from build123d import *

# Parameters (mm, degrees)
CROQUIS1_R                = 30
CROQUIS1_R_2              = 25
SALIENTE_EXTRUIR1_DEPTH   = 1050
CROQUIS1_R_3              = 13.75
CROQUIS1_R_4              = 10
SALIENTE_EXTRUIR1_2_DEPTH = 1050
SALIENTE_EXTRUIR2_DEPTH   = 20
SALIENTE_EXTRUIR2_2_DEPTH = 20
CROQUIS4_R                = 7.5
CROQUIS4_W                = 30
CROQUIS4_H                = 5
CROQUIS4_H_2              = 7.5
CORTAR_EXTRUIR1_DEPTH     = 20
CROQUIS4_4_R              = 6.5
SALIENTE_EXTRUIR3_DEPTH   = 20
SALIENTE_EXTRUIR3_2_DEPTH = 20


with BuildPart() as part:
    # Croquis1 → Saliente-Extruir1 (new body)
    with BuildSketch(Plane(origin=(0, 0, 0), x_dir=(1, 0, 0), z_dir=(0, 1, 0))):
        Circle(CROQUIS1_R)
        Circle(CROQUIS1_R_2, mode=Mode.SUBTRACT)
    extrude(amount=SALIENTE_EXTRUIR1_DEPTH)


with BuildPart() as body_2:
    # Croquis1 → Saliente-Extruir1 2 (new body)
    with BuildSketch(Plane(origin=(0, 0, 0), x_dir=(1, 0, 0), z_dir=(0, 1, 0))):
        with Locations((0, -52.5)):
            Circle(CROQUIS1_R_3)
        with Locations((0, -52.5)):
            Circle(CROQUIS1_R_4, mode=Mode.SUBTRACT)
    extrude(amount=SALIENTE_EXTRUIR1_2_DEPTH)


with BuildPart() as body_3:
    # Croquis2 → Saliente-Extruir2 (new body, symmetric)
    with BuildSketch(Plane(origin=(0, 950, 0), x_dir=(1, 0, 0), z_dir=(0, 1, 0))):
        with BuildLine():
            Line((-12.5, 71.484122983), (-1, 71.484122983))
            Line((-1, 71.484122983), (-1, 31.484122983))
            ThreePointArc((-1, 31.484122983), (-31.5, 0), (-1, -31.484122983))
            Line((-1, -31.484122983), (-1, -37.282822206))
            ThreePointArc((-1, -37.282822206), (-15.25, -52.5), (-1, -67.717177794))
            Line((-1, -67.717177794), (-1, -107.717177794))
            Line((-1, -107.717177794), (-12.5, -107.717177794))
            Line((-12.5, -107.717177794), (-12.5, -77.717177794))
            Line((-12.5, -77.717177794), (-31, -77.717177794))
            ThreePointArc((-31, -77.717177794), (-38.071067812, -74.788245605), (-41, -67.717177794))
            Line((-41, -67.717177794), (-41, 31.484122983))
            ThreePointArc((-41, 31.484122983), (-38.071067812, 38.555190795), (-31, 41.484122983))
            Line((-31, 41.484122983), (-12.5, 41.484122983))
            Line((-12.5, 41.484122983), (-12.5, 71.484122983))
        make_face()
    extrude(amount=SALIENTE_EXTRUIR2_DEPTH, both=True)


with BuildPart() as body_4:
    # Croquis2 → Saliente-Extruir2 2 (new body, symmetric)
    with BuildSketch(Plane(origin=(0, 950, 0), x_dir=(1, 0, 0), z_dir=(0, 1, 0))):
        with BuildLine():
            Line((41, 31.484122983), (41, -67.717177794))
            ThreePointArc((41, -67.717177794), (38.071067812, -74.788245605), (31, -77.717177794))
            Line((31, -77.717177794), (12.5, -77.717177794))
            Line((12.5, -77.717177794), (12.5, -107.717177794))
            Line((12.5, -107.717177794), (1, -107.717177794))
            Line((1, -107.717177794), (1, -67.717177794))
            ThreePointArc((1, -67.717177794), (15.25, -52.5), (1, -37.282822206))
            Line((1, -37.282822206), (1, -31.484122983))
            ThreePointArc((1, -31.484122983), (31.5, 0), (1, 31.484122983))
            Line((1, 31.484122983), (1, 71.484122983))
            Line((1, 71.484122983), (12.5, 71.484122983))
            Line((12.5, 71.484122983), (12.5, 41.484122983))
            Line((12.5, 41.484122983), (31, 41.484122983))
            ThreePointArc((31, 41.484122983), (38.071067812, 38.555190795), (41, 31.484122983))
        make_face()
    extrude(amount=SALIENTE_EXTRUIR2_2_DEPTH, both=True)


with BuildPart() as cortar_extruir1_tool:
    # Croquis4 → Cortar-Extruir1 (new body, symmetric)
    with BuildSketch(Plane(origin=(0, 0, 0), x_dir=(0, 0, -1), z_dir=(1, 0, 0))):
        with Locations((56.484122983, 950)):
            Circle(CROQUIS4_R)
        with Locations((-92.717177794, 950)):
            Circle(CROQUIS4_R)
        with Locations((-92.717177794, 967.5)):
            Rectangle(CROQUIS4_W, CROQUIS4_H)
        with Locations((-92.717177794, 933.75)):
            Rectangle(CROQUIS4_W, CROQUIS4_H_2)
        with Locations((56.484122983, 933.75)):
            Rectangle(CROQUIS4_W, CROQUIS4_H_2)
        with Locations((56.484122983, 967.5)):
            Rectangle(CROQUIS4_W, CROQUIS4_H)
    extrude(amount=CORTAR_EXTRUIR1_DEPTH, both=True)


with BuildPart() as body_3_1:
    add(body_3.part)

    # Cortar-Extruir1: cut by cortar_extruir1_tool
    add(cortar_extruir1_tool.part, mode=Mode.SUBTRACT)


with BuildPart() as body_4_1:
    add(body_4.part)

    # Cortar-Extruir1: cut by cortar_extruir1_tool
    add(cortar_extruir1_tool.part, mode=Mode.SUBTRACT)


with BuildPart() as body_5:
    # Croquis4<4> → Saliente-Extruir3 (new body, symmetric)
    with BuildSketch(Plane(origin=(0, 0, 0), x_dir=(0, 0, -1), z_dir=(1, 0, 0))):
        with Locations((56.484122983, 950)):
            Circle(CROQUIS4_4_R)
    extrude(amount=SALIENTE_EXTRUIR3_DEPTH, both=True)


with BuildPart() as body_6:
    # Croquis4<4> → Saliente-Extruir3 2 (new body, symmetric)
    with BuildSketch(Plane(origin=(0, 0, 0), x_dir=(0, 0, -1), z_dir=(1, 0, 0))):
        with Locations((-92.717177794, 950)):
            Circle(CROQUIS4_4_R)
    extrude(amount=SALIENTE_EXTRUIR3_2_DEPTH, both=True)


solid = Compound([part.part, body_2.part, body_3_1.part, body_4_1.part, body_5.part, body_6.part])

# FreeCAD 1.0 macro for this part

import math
import FreeCAD as App
import Part
import Sketcher
from FreeCAD import Vector
Q = App.Units.Quantity

doc = App.newDocument("Part")
body = doc.addObject("PartDesign::Body", "Body")

# Sketch on XZ plane
sketch1 = doc.addObject("Sketcher::SketchObject", "Sketch")
body.addObject(sketch1)
sketch1.AttachmentSupport = (doc.XZ_Plane, [""])
sketch1.MapMode = "FlatFace"
sketch1.addGeometry([
    Part.Circle(Vector(0, 0, 0), Vector(0, 0, 1), 30),
    Part.Circle(Vector(0, 0, 0), Vector(0, 0, 1), 25),
], False)
sketch1.addConstraint([
    Sketcher.Constraint("Coincident", 0, 3, -1, 1),
    Sketcher.Constraint("Coincident", 1, 3, -1, 1),
    Sketcher.Constraint("Diameter", 0, Q("60 mm")),
    Sketcher.Constraint("Diameter", 1, Q("50 mm")),
])
pad1 = doc.addObject("PartDesign::Pad", "Pad")
body.addObject(pad1)
pad1.Profile = sketch1
pad1.Length = 1050
pad1.Reversed = True
body2 = doc.addObject("PartDesign::Body", "Body001")

# Sketch on XZ plane
sketch2 = doc.addObject("Sketcher::SketchObject", "Sketch001")
body2.addObject(sketch2)
sketch2.AttachmentSupport = (doc.getObject("XZ_Plane001"), [""])
sketch2.MapMode = "FlatFace"
sketch2.addGeometry([
    Part.Circle(Vector(0, 52, 0), Vector(0, 0, 1), 14),
    Part.Circle(Vector(0, 52, 0), Vector(0, 0, 1), 10),
], False)
sketch2.addConstraint([
    Sketcher.Constraint("Coincident", 1, 3, 0, 3),
    Sketcher.Constraint("PointOnObject", 0, 3, -2),
    Sketcher.Constraint("Diameter", 1, Q("20 mm")),
    Sketcher.Constraint("Diameter", 0, Q("27.5 mm")),
    Sketcher.Constraint("DistanceY", -1, 1, 0, 3, Q("52.5 mm")),
])
pad2 = doc.addObject("PartDesign::Pad", "Pad001")
body2.addObject(pad2)
pad2.Profile = sketch2
pad2.Length = 1050
pad2.Reversed = True
body3 = doc.addObject("PartDesign::Body", "Body002")

# Sketch on XZ plane
sketch3 = doc.addObject("Sketcher::SketchObject", "Sketch002")
body3.addObject(sketch3)
sketch3.AttachmentSupport = (doc.getObject("XZ_Plane002"), [""])
sketch3.MapMode = "FlatFace"
sketch3.AttachmentOffset = App.Placement(Vector(0, 0, -950), App.Rotation())
sketch3.addGeometry([
    Part.LineSegment(Vector(-1, -71, 0), Vector(-12, -71, 0)),  # 0
    Part.LineSegment(Vector(-12, -71, 0), Vector(-12, -41, 0)),  # 1
    Part.LineSegment(Vector(-12, -41, 0), Vector(-31, -41, 0)),  # 2
    Part.ArcOfCircle(Part.Circle(Vector(-31, -31, 0), Vector(0, 0, 1), 10), math.radians(180), math.radians(270)),  # 3
    Part.LineSegment(Vector(-41, -31, 0), Vector(-41, 68, 0)),  # 4
    Part.ArcOfCircle(Part.Circle(Vector(-31, 68, 0), Vector(0, 0, 1), 10), math.radians(90), math.radians(180)),  # 5
    Part.LineSegment(Vector(-31, 78, 0), Vector(-12, 78, 0)),  # 6
    Part.LineSegment(Vector(-12, 78, 0), Vector(-12, 108, 0)),  # 7
    Part.LineSegment(Vector(-12, 108, 0), Vector(-1, 108, 0)),  # 8
    Part.LineSegment(Vector(-1, 108, 0), Vector(-1, 68, 0)),  # 9
    Part.ArcOfCircle(Part.Circle(Vector(0, 52, 0), Vector(0, 0, 1), 15), math.radians(94), math.radians(266)),  # 10
    Part.LineSegment(Vector(-1, 37, 0), Vector(-1, 31, 0)),  # 11
    Part.ArcOfCircle(Part.Circle(Vector(0, 0, 0), Vector(0, 0, 1), 32), math.radians(92), math.radians(268)),  # 12
    Part.LineSegment(Vector(-1, -31, 0), Vector(-1, -71, 0)),  # 13
], False)
sketch3.addConstraint([
    Sketcher.Constraint("Coincident", 0, 2, 1, 1),
    Sketcher.Constraint("Coincident", 1, 2, 2, 1),
    Sketcher.Constraint("Tangent", 2, 2, 3, 2),
    Sketcher.Constraint("Tangent", 3, 1, 4, 1),
    Sketcher.Constraint("Tangent", 4, 2, 5, 2),
    Sketcher.Constraint("Tangent", 5, 1, 6, 1),
    Sketcher.Constraint("Coincident", 6, 2, 7, 1),
    Sketcher.Constraint("Coincident", 7, 2, 8, 1),
    Sketcher.Constraint("Coincident", 8, 2, 9, 1),
    Sketcher.Constraint("Coincident", 9, 2, 10, 1),
    Sketcher.Constraint("Coincident", 10, 2, 11, 1),
    Sketcher.Constraint("Coincident", 11, 2, 12, 1),
    Sketcher.Constraint("Coincident", 12, 2, 13, 1),
    Sketcher.Constraint("Coincident", 13, 2, 0, 1),
    Sketcher.Constraint("Horizontal", 0),
    Sketcher.Constraint("Vertical", 1),
    Sketcher.Constraint("Horizontal", 2),
    Sketcher.Constraint("Vertical", 4),
    Sketcher.Constraint("Horizontal", 6),
    Sketcher.Constraint("Vertical", 7),
    Sketcher.Constraint("Horizontal", 8),
    Sketcher.Constraint("Vertical", 9),
    Sketcher.Constraint("Vertical", 11),
    Sketcher.Constraint("Vertical", 13),
    Sketcher.Constraint("Coincident", 12, 3, -1, 1),
    Sketcher.Constraint("Equal", 3, 5),
    Sketcher.Constraint("PointOnObject", 10, 3, -2),
    Sketcher.Constraint("Horizontal", 4, 2, 9, 2),
    Sketcher.Constraint("Horizontal", 3, 1, 12, 2),
    Sketcher.Constraint("Vertical", 1, 2, 6, 2),
    Sketcher.Constraint("Vertical", 9, 2, 10, 2),
    Sketcher.Constraint("Vertical", 11, 2, 12, 2),
    Sketcher.Constraint("Equal", 1, 7),
    Sketcher.Constraint("Radius", 3, Q("10 mm")),
    Sketcher.Constraint("Radius", 12, Q("31.5 mm")),
    Sketcher.Constraint("DistanceY", 1, 1, 1, 2, Q("30 mm")),
    Sketcher.Constraint("Radius", 10, Q("15.25 mm")),
    Sketcher.Constraint("DistanceX", 0, 2, 0, 1, Q("11.5 mm")),
    Sketcher.Constraint("DistanceX", 2, 2, 2, 1, Q("18.5 mm")),
    Sketcher.Constraint("DistanceX", 3, 3, -1, 1, Q("31 mm")),
    Sketcher.Constraint("DistanceY", -1, 1, 10, 3, Q("52.5 mm")),
])
pad3 = doc.addObject("PartDesign::Pad", "Pad002")
body3.addObject(pad3)
pad3.Profile = sketch3
pad3.Length = 40
pad3.Midplane = True
body4 = doc.addObject("PartDesign::Body", "Body003")

# Sketch on XZ plane
sketch4 = doc.addObject("Sketcher::SketchObject", "Sketch003")
body4.addObject(sketch4)
sketch4.AttachmentSupport = (doc.getObject("XZ_Plane003"), [""])
sketch4.MapMode = "FlatFace"
sketch4.AttachmentOffset = App.Placement(Vector(0, 0, -950), App.Rotation())
sketch4.addGeometry([
    Part.LineSegment(Vector(41, 68, 0), Vector(41, -31, 0)),  # 0
    Part.ArcOfCircle(Part.Circle(Vector(31, -31, 0), Vector(0, 0, 1), 10), math.radians(-90), math.radians(0)),  # 1
    Part.LineSegment(Vector(31, -41, 0), Vector(12, -41, 0)),  # 2
    Part.LineSegment(Vector(12, -41, 0), Vector(12, -71, 0)),  # 3
    Part.LineSegment(Vector(12, -71, 0), Vector(1, -71, 0)),  # 4
    Part.LineSegment(Vector(1, -71, 0), Vector(1, -31, 0)),  # 5
    Part.ArcOfCircle(Part.Circle(Vector(0, 0, 0), Vector(0, 0, 1), 32), math.radians(-88), math.radians(88)),  # 6
    Part.LineSegment(Vector(1, 31, 0), Vector(1, 37, 0)),  # 7
    Part.ArcOfCircle(Part.Circle(Vector(0, 52, 0), Vector(0, 0, 1), 15), math.radians(-86), math.radians(86)),  # 8
    Part.LineSegment(Vector(1, 68, 0), Vector(1, 108, 0)),  # 9
    Part.LineSegment(Vector(1, 108, 0), Vector(12, 108, 0)),  # 10
    Part.LineSegment(Vector(12, 108, 0), Vector(12, 78, 0)),  # 11
    Part.LineSegment(Vector(12, 78, 0), Vector(31, 78, 0)),  # 12
    Part.ArcOfCircle(Part.Circle(Vector(31, 68, 0), Vector(0, 0, 1), 10), math.radians(0), math.radians(90)),  # 13
], False)
sketch4.addConstraint([
    Sketcher.Constraint("Tangent", 0, 2, 1, 2),
    Sketcher.Constraint("Tangent", 1, 1, 2, 1),
    Sketcher.Constraint("Coincident", 2, 2, 3, 1),
    Sketcher.Constraint("Coincident", 3, 2, 4, 1),
    Sketcher.Constraint("Coincident", 4, 2, 5, 1),
    Sketcher.Constraint("Coincident", 5, 2, 6, 1),
    Sketcher.Constraint("Coincident", 6, 2, 7, 1),
    Sketcher.Constraint("Coincident", 7, 2, 8, 1),
    Sketcher.Constraint("Coincident", 8, 2, 9, 1),
    Sketcher.Constraint("Coincident", 9, 2, 10, 1),
    Sketcher.Constraint("Coincident", 10, 2, 11, 1),
    Sketcher.Constraint("Coincident", 11, 2, 12, 1),
    Sketcher.Constraint("Tangent", 12, 2, 13, 2),
    Sketcher.Constraint("Tangent", 13, 1, 0, 1),
    Sketcher.Constraint("Vertical", 0),
    Sketcher.Constraint("Horizontal", 2),
    Sketcher.Constraint("Vertical", 3),
    Sketcher.Constraint("Horizontal", 4),
    Sketcher.Constraint("Vertical", 5),
    Sketcher.Constraint("Vertical", 7),
    Sketcher.Constraint("Vertical", 9),
    Sketcher.Constraint("Horizontal", 10),
    Sketcher.Constraint("Vertical", 11),
    Sketcher.Constraint("Horizontal", 12),
    Sketcher.Constraint("Coincident", 6, 3, -1, 1),
    Sketcher.Constraint("Equal", 1, 13),
    Sketcher.Constraint("PointOnObject", 8, 3, -2),
    Sketcher.Constraint("Horizontal", 0, 2, 5, 2),
    Sketcher.Constraint("Horizontal", 13, 3, 8, 2),
    Sketcher.Constraint("Vertical", 5, 2, 6, 2),
    Sketcher.Constraint("Vertical", 7, 2, 8, 2),
    Sketcher.Constraint("Vertical", 3, 2, 10, 2),
    Sketcher.Constraint("Equal", 5, 9),
    Sketcher.Constraint("Radius", 1, Q("10 mm")),
    Sketcher.Constraint("Radius", 6, Q("31.5 mm")),
    Sketcher.Constraint("DistanceY", 3, 2, 3, 1, Q("30 mm")),
    Sketcher.Constraint("Radius", 8, Q("15.25 mm")),
    Sketcher.Constraint("DistanceX", 2, 2, 2, 1, Q("18.5 mm")),
    Sketcher.Constraint("DistanceX", 4, 2, 4, 1, Q("11.5 mm")),
    Sketcher.Constraint("DistanceX", -1, 1, 1, 3, Q("31 mm")),
    Sketcher.Constraint("DistanceY", -1, 1, 8, 3, Q("52.5 mm")),
])
pad4 = doc.addObject("PartDesign::Pad", "Pad003")
body4.addObject(pad4)
pad4.Profile = sketch4
pad4.Length = 40
pad4.Midplane = True
body5 = doc.addObject("PartDesign::Body", "Body004")
body5.AllowCompound = True

# Sketch on YZ plane
sketch5 = doc.addObject("Sketcher::SketchObject", "Sketch004")
body5.addObject(sketch5)
sketch5.AttachmentSupport = (doc.getObject("YZ_Plane004"), [""])
sketch5.MapMode = "FlatFace"
sketch5.addGeometry([
    Part.Circle(Vector(950, -56, 0), Vector(0, 0, 1), 8),  # 0
    Part.Circle(Vector(950, 93, 0), Vector(0, 0, 1), 8),  # 1
    Part.LineSegment(Vector(970, 108, 0), Vector(965, 108, 0)),  # 2
    Part.LineSegment(Vector(965, 108, 0), Vector(965, 78, 0)),  # 3
    Part.LineSegment(Vector(965, 78, 0), Vector(970, 78, 0)),  # 4
    Part.LineSegment(Vector(970, 78, 0), Vector(970, 108, 0)),  # 5
    Part.LineSegment(Vector(938, 108, 0), Vector(930, 108, 0)),  # 6
    Part.LineSegment(Vector(930, 108, 0), Vector(930, 78, 0)),  # 7
    Part.LineSegment(Vector(930, 78, 0), Vector(938, 78, 0)),  # 8
    Part.LineSegment(Vector(938, 78, 0), Vector(938, 108, 0)),  # 9
    Part.LineSegment(Vector(938, -41, 0), Vector(930, -41, 0)),  # 10
    Part.LineSegment(Vector(930, -41, 0), Vector(930, -71, 0)),  # 11
    Part.LineSegment(Vector(930, -71, 0), Vector(938, -71, 0)),  # 12
    Part.LineSegment(Vector(938, -71, 0), Vector(938, -41, 0)),  # 13
    Part.LineSegment(Vector(970, -41, 0), Vector(965, -41, 0)),  # 14
    Part.LineSegment(Vector(965, -41, 0), Vector(965, -71, 0)),  # 15
    Part.LineSegment(Vector(965, -71, 0), Vector(970, -71, 0)),  # 16
    Part.LineSegment(Vector(970, -71, 0), Vector(970, -41, 0)),  # 17
], False)
sketch5.addConstraint([
    Sketcher.Constraint("Coincident", 2, 2, 3, 1),
    Sketcher.Constraint("Coincident", 3, 2, 4, 1),
    Sketcher.Constraint("Coincident", 4, 2, 5, 1),
    Sketcher.Constraint("Coincident", 5, 2, 2, 1),
    Sketcher.Constraint("Coincident", 6, 2, 7, 1),
    Sketcher.Constraint("Coincident", 7, 2, 8, 1),
    Sketcher.Constraint("Coincident", 8, 2, 9, 1),
    Sketcher.Constraint("Coincident", 9, 2, 6, 1),
    Sketcher.Constraint("Coincident", 10, 2, 11, 1),
    Sketcher.Constraint("Coincident", 11, 2, 12, 1),
    Sketcher.Constraint("Coincident", 12, 2, 13, 1),
    Sketcher.Constraint("Coincident", 13, 2, 10, 1),
    Sketcher.Constraint("Coincident", 14, 2, 15, 1),
    Sketcher.Constraint("Coincident", 15, 2, 16, 1),
    Sketcher.Constraint("Coincident", 16, 2, 17, 1),
    Sketcher.Constraint("Coincident", 17, 2, 14, 1),
    Sketcher.Constraint("Horizontal", 2),
    Sketcher.Constraint("Vertical", 3),
    Sketcher.Constraint("Horizontal", 4),
    Sketcher.Constraint("Vertical", 5),
    Sketcher.Constraint("Horizontal", 6),
    Sketcher.Constraint("Vertical", 7),
    Sketcher.Constraint("Horizontal", 8),
    Sketcher.Constraint("Vertical", 9),
    Sketcher.Constraint("Horizontal", 10),
    Sketcher.Constraint("Vertical", 11),
    Sketcher.Constraint("Horizontal", 12),
    Sketcher.Constraint("Vertical", 13),
    Sketcher.Constraint("Horizontal", 14),
    Sketcher.Constraint("Vertical", 15),
    Sketcher.Constraint("Horizontal", 16),
    Sketcher.Constraint("Vertical", 17),
    Sketcher.Constraint("Equal", 0, 1),
    Sketcher.Constraint("Horizontal", 5, 2, 6, 2),
    Sketcher.Constraint("Horizontal", 4, 2, 7, 2),
    Sketcher.Constraint("Horizontal", 13, 2, 14, 2),
    Sketcher.Constraint("Horizontal", 12, 2, 15, 2),
    Sketcher.Constraint("Vertical", 0, 3, 1, 3),
    Sketcher.Constraint("Vertical", 7, 2, 10, 2),
    Sketcher.Constraint("Vertical", 9, 2, 12, 2),
    Sketcher.Constraint("Vertical", 3, 2, 14, 2),
    Sketcher.Constraint("Vertical", 5, 2, 16, 2),
    Sketcher.Constraint("Equal", 9, 11),
    Sketcher.Constraint("Diameter", 0, Q("15 mm")),
    Sketcher.Constraint("DistanceX", 2, 2, 2, 1, Q("5 mm")),
    Sketcher.Constraint("DistanceY", 3, 2, 3, 1, Q("30 mm")),
    Sketcher.Constraint("DistanceX", 6, 2, 6, 1, Q("7.5 mm")),
    Sketcher.Constraint("DistanceX", -1, 1, 0, 3, Q("950 mm")),
    Sketcher.Constraint("DistanceX", -1, 1, 2, 2, Q("965 mm")),
    Sketcher.Constraint("DistanceX", -1, 1, 6, 2, Q("930 mm")),
    Sketcher.Constraint("DistanceY", 1, 3, 2, 2, Q("15 mm")),
    Sketcher.Constraint("DistanceY", 0, 3, 10, 2, Q("15 mm")),
    Sketcher.Constraint("DistanceY", 0, 3, 1, 3, Q("149.201301 mm")),
    Sketcher.Constraint("DistanceY", 0, 3, -1, 1, Q("56.484123 mm")),
])
pad5 = doc.addObject("PartDesign::Pad", "Pad004")
body5.addObject(pad5)
pad5.Profile = sketch5
pad5.Length = 40
pad5.Midplane = True
doc.recompute()

body6 = doc.addObject("PartDesign::Body", "Body005")
body6.BaseFeature = body5
boolean = doc.addObject("PartDesign::Boolean", "Boolean")
body3.addObject(boolean)
boolean.Type = "Cut"
boolean.addObjects([body6])
doc.recompute()

boolean2 = doc.addObject("PartDesign::Boolean", "Boolean001")
body4.addObject(boolean2)
boolean2.Type = "Cut"
boolean2.addObjects([body5])
body7 = doc.addObject("PartDesign::Body", "Body006")

# Sketch on YZ plane
sketch6 = doc.addObject("Sketcher::SketchObject", "Sketch005")
body7.addObject(sketch6)
sketch6.AttachmentSupport = (doc.getObject("YZ_Plane006"), [""])
sketch6.MapMode = "FlatFace"
sketch6.addGeometry(Part.Circle(Vector(950, -56, 0), Vector(0, 0, 1), 6), False)
sketch6.addConstraint([
    Sketcher.Constraint("Diameter", 0, Q("13 mm")),
    Sketcher.Constraint("DistanceX", -1, 1, 0, 3, Q("950 mm")),
    Sketcher.Constraint("DistanceY", 0, 3, -1, 1, Q("56.484123 mm")),
])
pad6 = doc.addObject("PartDesign::Pad", "Pad005")
body7.addObject(pad6)
pad6.Profile = sketch6
pad6.Length = 40
pad6.Midplane = True
body8 = doc.addObject("PartDesign::Body", "Body007")

# Sketch on YZ plane
sketch7 = doc.addObject("Sketcher::SketchObject", "Sketch006")
body8.addObject(sketch7)
sketch7.AttachmentSupport = (doc.getObject("YZ_Plane007"), [""])
sketch7.MapMode = "FlatFace"
sketch7.addGeometry(Part.Circle(Vector(950, 93, 0), Vector(0, 0, 1), 6), False)
sketch7.addConstraint([
    Sketcher.Constraint("Diameter", 0, Q("13 mm")),
    Sketcher.Constraint("DistanceX", -1, 1, 0, 3, Q("950 mm")),
    Sketcher.Constraint("DistanceY", -1, 1, 0, 3, Q("92.717178 mm")),
])
pad7 = doc.addObject("PartDesign::Pad", "Pad006")
body8.addObject(pad7)
pad7.Profile = sketch7
pad7.Length = 40
pad7.Midplane = True

doc.recompute()
